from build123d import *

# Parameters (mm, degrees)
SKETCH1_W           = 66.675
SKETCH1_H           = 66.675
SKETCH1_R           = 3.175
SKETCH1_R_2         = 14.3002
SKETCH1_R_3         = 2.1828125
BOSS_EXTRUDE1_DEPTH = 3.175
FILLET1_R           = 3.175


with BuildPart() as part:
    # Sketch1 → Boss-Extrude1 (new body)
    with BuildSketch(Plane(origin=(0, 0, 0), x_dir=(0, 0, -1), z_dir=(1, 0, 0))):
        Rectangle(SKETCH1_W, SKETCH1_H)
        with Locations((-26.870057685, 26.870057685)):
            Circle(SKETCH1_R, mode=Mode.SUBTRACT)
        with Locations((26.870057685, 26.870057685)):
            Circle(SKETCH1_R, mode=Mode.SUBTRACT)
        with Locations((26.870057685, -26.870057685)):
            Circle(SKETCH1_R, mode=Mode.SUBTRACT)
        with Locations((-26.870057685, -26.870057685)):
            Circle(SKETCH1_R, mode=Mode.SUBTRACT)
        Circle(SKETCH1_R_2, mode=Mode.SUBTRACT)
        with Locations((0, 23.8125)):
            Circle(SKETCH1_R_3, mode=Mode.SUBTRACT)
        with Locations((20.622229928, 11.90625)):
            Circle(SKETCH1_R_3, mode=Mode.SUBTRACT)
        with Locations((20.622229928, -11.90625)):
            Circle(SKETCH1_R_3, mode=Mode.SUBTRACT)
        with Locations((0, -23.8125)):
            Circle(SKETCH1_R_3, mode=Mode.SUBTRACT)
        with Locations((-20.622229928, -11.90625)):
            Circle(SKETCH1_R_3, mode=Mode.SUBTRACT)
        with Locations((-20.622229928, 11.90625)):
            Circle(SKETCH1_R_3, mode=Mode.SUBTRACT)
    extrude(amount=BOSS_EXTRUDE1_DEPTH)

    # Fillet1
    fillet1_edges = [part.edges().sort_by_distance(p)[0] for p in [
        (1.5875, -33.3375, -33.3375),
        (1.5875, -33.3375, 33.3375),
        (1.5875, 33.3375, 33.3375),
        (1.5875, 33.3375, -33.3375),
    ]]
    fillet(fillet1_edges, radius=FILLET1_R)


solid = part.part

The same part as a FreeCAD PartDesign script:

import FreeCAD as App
import Part
import Sketcher
Q = App.Units.Quantity


def edges_at(feature, points):
    """Names of the edges that pass closest to the given points."""
    edges = feature.Shape.Edges
    near = lambda p: min(range(len(edges)), key=lambda i: edges[i].distToShape(Part.Vertex(*p))[0])
    return sorted({f"Edge{near(p) + 1}" for p in points})


def add_polygon(sketch, points):
    """Adds a closed chain of lines whose ends are joined by coincident constraints."""
    first, n = sketch.GeometryCount, len(points)
    for a, b in zip(points, points[1:] + points[:1]):
        sketch.addGeometry(Part.LineSegment(App.Vector(*a, 0), App.Vector(*b, 0)), False)
    for i in range(n):
        sketch.addConstraint(Sketcher.Constraint("Coincident", first + i, 2, first + (i + 1) % n, 1))

doc = App.newDocument("Part")
body = doc.addObject("PartDesign::Body", "Body")

# Sketch on YZ plane
sketch1 = body.newObject("Sketcher::SketchObject", "Sketch")
sketch1.AttachmentSupport = (doc.getObject("YZ_Plane"), [""])
sketch1.MapMode = "FlatFace"
add_polygon(sketch1, [(33.3375, 33.3375), (-33.3375, 33.3375), (-33.3375, -33.3375), (33.3375, -33.3375)])  # lines 0-3
sketch1.addGeometry(Part.Circle(App.Vector(-26.870058, 26.870058, 0), App.Vector(0, 0, 1), 3.175), False)  # 4
sketch1.addGeometry(Part.Circle(App.Vector(-11.90625, 20.62223, 0), App.Vector(0, 0, 1), 2.182812), False)  # 5
sketch1.addGeometry(Part.Circle(App.Vector(-23.8125, 0, 0), App.Vector(0, 0, 1), 2.182812), False)  # 6
sketch1.addGeometry(Part.Circle(App.Vector(-26.870058, -26.870058, 0), App.Vector(0, 0, 1), 3.175), False)  # 7
sketch1.addGeometry(Part.Circle(App.Vector(-11.90625, -20.62223, 0), App.Vector(0, 0, 1), 2.182812), False)  # 8
sketch1.addGeometry(Part.Circle(App.Vector(11.90625, 20.62223, 0), App.Vector(0, 0, 1), 2.182812), False)  # 9
sketch1.addGeometry(Part.Circle(App.Vector(26.870058, 26.870058, 0), App.Vector(0, 0, 1), 3.175), False)  # 10
sketch1.addGeometry(Part.Circle(App.Vector(0, 0, 0), App.Vector(0, 0, 1), 14.3002), False)  # 11
sketch1.addGeometry(Part.Circle(App.Vector(11.90625, -20.62223, 0), App.Vector(0, 0, 1), 2.182812), False)  # 12
sketch1.addGeometry(Part.Circle(App.Vector(23.8125, 0, 0), App.Vector(0, 0, 1), 2.182812), False)  # 13
sketch1.addGeometry(Part.Circle(App.Vector(26.870058, -26.870058, 0), App.Vector(0, 0, 1), 3.175), False)  # 14
sketch1.addConstraint([
    Sketcher.Constraint("Horizontal", 0),
    Sketcher.Constraint("Vertical", 1),
    Sketcher.Constraint("Horizontal", 2),
    Sketcher.Constraint("Vertical", 3),
    Sketcher.Constraint("Coincident", 11, 3, -1, 1),
    Sketcher.Constraint("Equal", 5, 6),
    Sketcher.Constraint("Equal", 4, 7),
    Sketcher.Constraint("Equal", 6, 8),
    Sketcher.Constraint("Equal", 8, 9),
    Sketcher.Constraint("Equal", 7, 10),
    Sketcher.Constraint("Equal", 9, 12),
    Sketcher.Constraint("Equal", 12, 13),
    Sketcher.Constraint("Equal", 10, 14),
    Sketcher.Constraint("Symmetric", 8, 3, 9, 3, -1, 1),
    Sketcher.Constraint("Symmetric", 7, 3, 10, 3, -1, 1),
    Sketcher.Constraint("Symmetric", 5, 3, 12, 3, -1, 1),
    Sketcher.Constraint("Symmetric", 6, 3, 13, 3, -1, 1),
    Sketcher.Constraint("Symmetric", 4, 3, 14, 3, -1, 1),
    Sketcher.Constraint("Symmetric", 0, 2, 2, 2, -1, 1),
    Sketcher.Constraint("Symmetric", 5, 3, 9, 3, -2),
    Sketcher.Constraint("Symmetric", 4, 3, 10, 3, -2),
    Sketcher.Constraint("PointOnObject", 6, 3, -1),
    Sketcher.Constraint("Equal", 2, 1),
    Sketcher.Constraint("Diameter", 4, Q("0.25 in")),
    Sketcher.Constraint("Diameter", 5, Q("0.171875 in")),
    Sketcher.Constraint("Diameter", 11, Q("1.126 in")),
    Sketcher.Constraint("DistanceX", 0, 2, 0, 1, Q("2.625 in")),
    Sketcher.Constraint("DistanceX", 5, 3, -1, 1, Q("0.46875 in")),
    Sketcher.Constraint("DistanceX", 6, 3, -1, 1, Q("0.9375 in")),
    Sketcher.Constraint("DistanceY", -1, 1, 5, 3, 20.62223),
    Sketcher.Constraint("DistanceX", 4, 3, -1, 1, 26.870058),
    Sketcher.Constraint("DistanceY", -1, 1, 4, 3, 26.870058),
])
pad1 = body.newObject("PartDesign::Pad", "Pad")
pad1.Profile = sketch1
pad1.Length = Q("0.125 in")
doc.recompute()

fillet = body.newObject("PartDesign::Fillet", "Fillet")
fillet.Base = (pad1, edges_at(pad1, [
    (1.587, -33.337, -33.337),
    (1.587, -33.337, 33.337),
    (1.587, 33.337, 33.337),
    (1.587, 33.337, -33.337),
]))
fillet.Radius = Q("0.125 in")

doc.recompute()
